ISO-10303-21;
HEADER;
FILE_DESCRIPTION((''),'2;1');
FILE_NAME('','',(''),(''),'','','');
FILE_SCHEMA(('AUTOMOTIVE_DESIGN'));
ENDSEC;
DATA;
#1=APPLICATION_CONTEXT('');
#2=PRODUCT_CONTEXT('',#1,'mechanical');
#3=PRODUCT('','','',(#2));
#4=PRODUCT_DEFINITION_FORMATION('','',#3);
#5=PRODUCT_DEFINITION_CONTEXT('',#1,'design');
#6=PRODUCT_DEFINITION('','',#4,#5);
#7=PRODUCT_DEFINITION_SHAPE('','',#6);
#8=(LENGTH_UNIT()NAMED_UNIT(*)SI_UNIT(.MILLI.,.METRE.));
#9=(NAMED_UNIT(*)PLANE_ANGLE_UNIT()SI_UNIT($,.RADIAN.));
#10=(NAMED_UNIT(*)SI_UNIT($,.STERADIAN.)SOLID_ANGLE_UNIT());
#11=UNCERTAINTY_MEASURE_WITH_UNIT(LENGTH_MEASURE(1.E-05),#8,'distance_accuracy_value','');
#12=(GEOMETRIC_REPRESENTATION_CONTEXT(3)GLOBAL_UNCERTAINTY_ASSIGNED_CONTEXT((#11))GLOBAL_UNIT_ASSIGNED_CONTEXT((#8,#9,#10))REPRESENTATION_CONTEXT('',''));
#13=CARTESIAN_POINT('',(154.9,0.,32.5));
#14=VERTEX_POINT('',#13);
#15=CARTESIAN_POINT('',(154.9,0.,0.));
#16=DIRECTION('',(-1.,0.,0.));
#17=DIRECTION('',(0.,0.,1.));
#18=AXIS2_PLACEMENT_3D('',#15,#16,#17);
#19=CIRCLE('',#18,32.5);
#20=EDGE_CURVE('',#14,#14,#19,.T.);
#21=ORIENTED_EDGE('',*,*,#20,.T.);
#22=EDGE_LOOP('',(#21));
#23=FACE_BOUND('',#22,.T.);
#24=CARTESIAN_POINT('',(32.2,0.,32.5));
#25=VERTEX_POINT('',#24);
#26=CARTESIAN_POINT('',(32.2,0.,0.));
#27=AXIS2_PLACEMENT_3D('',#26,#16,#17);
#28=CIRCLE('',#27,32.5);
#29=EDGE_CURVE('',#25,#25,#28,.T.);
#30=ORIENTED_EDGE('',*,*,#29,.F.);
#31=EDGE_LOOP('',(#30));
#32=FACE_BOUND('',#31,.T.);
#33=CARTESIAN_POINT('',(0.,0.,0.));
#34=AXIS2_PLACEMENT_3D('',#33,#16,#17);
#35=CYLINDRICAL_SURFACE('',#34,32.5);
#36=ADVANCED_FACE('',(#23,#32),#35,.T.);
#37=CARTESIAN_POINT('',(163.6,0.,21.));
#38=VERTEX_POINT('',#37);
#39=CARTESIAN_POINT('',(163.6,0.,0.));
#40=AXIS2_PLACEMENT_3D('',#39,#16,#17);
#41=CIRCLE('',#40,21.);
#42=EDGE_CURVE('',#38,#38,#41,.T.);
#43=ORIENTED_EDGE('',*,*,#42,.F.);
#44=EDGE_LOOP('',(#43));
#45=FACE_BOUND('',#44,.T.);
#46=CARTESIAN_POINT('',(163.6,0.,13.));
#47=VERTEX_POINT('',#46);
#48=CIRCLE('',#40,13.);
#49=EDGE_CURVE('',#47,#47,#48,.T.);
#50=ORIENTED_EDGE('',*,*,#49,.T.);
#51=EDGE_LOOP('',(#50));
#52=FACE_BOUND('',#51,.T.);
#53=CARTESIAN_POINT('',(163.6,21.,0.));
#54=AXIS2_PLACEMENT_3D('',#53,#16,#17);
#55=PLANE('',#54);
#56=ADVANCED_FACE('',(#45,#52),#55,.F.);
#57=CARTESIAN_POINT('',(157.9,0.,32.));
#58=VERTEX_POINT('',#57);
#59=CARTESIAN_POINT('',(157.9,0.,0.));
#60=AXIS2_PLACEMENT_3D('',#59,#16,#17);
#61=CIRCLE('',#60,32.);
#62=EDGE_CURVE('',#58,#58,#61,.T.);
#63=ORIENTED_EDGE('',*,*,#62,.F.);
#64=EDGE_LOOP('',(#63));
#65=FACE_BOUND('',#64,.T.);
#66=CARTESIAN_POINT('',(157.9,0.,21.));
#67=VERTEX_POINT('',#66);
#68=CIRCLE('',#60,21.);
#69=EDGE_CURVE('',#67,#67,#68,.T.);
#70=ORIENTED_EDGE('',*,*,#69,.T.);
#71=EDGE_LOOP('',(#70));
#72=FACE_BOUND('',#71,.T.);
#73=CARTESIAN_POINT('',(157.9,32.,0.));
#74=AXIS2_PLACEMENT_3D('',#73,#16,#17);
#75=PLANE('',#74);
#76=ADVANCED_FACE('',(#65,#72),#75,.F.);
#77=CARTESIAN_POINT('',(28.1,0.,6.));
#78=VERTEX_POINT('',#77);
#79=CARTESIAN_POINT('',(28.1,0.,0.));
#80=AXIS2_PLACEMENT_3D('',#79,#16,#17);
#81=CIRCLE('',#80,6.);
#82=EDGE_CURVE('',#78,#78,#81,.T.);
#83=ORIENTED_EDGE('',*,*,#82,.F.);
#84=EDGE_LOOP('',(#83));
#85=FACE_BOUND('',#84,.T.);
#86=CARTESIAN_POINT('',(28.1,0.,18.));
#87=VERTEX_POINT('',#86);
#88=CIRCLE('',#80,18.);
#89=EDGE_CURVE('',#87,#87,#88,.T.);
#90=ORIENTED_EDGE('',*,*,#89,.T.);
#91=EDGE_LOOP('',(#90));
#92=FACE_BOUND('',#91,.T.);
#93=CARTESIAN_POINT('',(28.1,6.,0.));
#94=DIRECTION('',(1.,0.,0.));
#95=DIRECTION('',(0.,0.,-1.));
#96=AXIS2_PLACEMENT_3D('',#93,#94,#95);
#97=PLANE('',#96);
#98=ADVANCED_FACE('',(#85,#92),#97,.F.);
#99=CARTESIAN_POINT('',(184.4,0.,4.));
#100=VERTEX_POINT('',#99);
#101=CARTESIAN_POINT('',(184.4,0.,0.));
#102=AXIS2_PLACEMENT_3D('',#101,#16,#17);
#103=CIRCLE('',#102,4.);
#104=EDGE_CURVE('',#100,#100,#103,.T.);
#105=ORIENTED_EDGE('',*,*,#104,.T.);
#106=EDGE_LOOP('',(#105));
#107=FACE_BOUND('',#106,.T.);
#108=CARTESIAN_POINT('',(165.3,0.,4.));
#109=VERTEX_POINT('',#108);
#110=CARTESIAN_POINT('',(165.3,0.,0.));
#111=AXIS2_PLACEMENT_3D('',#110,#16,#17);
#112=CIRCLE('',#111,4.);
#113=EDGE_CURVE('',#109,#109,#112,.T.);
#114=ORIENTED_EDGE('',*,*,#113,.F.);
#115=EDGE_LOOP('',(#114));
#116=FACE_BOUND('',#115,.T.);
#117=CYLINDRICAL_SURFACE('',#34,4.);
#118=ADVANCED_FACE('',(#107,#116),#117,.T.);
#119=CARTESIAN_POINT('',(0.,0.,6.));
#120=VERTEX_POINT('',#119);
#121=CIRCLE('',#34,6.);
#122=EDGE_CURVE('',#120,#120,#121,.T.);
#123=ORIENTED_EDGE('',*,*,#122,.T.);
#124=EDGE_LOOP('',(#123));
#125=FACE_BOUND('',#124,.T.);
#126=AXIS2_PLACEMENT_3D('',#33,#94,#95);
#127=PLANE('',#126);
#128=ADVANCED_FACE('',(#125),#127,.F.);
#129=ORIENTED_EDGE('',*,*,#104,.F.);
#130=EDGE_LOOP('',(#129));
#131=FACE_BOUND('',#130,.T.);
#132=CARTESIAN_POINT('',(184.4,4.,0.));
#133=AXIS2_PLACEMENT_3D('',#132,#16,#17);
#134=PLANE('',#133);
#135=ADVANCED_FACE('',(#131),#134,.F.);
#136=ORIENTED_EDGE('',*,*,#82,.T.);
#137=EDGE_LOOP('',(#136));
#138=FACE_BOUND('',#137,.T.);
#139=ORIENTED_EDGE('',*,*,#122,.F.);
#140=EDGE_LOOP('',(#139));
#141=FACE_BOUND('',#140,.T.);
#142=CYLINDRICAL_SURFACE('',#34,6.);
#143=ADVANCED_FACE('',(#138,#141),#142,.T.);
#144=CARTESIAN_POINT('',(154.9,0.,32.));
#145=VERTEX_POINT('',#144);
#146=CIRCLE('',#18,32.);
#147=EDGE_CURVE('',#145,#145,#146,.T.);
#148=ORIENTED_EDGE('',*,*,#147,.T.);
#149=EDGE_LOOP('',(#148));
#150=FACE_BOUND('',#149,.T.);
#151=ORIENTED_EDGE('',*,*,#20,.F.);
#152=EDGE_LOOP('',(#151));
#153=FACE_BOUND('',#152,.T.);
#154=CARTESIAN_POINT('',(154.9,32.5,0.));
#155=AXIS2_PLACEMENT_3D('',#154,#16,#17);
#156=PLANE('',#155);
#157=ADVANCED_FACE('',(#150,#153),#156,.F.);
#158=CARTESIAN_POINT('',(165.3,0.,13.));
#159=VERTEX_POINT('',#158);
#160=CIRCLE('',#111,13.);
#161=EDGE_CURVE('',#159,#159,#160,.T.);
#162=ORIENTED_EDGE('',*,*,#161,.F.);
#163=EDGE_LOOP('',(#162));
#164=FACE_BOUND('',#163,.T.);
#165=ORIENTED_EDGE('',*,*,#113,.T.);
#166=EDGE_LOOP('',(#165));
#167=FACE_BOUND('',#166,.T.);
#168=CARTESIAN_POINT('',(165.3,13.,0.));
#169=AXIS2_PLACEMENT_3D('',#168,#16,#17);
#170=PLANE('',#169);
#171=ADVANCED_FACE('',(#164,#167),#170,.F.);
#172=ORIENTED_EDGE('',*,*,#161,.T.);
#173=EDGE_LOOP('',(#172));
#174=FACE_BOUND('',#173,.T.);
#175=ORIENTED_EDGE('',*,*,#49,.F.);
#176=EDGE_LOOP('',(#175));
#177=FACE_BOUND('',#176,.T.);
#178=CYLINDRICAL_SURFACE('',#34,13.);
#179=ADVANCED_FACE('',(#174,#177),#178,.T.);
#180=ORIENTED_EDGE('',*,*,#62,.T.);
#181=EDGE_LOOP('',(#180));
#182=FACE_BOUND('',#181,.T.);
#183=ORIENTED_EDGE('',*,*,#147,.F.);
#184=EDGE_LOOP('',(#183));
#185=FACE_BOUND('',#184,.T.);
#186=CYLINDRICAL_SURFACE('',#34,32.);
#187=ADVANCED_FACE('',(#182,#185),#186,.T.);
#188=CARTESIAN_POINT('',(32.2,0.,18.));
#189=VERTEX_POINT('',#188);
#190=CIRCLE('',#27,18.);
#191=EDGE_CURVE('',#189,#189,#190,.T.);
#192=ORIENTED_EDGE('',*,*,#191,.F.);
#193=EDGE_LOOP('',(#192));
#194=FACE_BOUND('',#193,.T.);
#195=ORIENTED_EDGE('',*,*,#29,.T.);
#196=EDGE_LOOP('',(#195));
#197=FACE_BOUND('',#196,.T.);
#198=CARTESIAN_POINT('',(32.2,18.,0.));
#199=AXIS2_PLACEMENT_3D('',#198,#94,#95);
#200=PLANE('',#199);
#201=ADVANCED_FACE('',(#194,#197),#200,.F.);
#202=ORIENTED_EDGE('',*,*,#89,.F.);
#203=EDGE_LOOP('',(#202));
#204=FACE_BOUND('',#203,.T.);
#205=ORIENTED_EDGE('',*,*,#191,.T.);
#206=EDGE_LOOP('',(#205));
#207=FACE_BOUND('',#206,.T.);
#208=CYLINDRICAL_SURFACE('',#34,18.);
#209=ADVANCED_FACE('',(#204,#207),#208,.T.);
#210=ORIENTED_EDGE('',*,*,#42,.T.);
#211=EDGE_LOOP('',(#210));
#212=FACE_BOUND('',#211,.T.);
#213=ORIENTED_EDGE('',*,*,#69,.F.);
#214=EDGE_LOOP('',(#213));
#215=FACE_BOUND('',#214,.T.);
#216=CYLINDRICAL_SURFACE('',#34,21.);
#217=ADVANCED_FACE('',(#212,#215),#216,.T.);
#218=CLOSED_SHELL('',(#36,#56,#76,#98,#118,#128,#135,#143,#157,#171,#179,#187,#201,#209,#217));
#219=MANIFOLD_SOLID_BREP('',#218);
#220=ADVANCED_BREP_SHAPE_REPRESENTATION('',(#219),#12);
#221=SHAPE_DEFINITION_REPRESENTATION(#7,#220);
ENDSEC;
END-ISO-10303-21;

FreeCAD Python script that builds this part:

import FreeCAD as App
import Part
import Sketcher

V = App.Vector
Q = App.Units.Quantity


def add_polygon(sketch, points):
    """Adds a closed chain of lines whose ends are joined by coincident constraints."""
    first, n = sketch.GeometryCount, len(points)
    for a, b in zip(points, points[1:] + points[:1]):
        sketch.addGeometry(Part.LineSegment(App.Vector(*a, 0), App.Vector(*b, 0)), False)
    for i in range(n):
        sketch.addConstraint(Sketcher.Constraint("Coincident", first + i, 2, first + (i + 1) % n, 1))

doc = App.newDocument("Part")
params = doc.addObject("Spreadsheet::Sheet", "Params")
for row, (alias, value) in enumerate([
    ("sketch1_width", "3 mm"),
    ("sketch1_height", "6 mm"),
    ("sketch1_height2", "4 mm"),
    ("sketch1_height3", "9 mm"),
    ("sketch1_height4", "8 mm"),
    ("revolution_angle", "360 deg"),
], start=1):
    params.set(f"A{row}", alias)
    params.set(f"B{row}", "=" + value)
    params.setAlias(f"B{row}", alias)

body = doc.addObject("PartDesign::Body", "Body")

sketch1 = body.newObject("Sketcher::SketchObject", "Sketch")
sketch1.AttachmentSupport = (doc.getObject("XY_Plane"), [""])
sketch1.MapMode = "FlatFace"
add_polygon(sketch1, [(0, 6), (0, 0), (184.4, 0), (184.4, 4), (165.3, 4), (165.3, 13), (163.6, 13), (163.6, 21), (157.9, 21), (157.9, 32), (154.9, 32), (154.9, 32.5), (32.2, 32.5), (32.2, 18), (28.1, 18), (28.1, 6)])
sketch1.addConstraint([
    Sketcher.Constraint("Vertical", 0),
    Sketcher.Constraint("Horizontal", 1),
    Sketcher.Constraint("Vertical", 2),
    Sketcher.Constraint("Horizontal", 3),
    Sketcher.Constraint("Vertical", 4),
    Sketcher.Constraint("Horizontal", 5),
    Sketcher.Constraint("Vertical", 6),
    Sketcher.Constraint("Horizontal", 7),
    Sketcher.Constraint("Vertical", 8),
    Sketcher.Constraint("Horizontal", 9),
    Sketcher.Constraint("Vertical", 10),
    Sketcher.Constraint("Horizontal", 11),
    Sketcher.Constraint("Vertical", 12),
    Sketcher.Constraint("Horizontal", 13),
    Sketcher.Constraint("Vertical", 14),
    Sketcher.Constraint("Horizontal", 15),
    Sketcher.Constraint("Coincident", 0, 2, -1, 1),
    Sketcher.Constraint("DistanceX", 9, 2, 9, 1, Q("3 mm")),
    Sketcher.Constraint("DistanceY", 0, 2, 0, 1, Q("6 mm")),
    Sketcher.Constraint("DistanceY", 2, 1, 2, 2, Q("4 mm")),
    Sketcher.Constraint("DistanceY", 4, 1, 4, 2, Q("9 mm")),
    Sketcher.Constraint("DistanceY", 6, 1, 6, 2, Q("8 mm")),
    Sketcher.Constraint("DistanceY", 8, 1, 8, 2, Q("11 mm")),
    Sketcher.Constraint("DistanceY", 14, 2, 14, 1, Q("12 mm")),
    Sketcher.Constraint("DistanceX", 1, 1, 1, 2, Q("184.4 mm")),
    Sketcher.Constraint("DistanceX", 3, 2, 3, 1, Q("19.1 mm")),
    Sketcher.Constraint("DistanceX", 5, 2, 5, 1, Q("1.7 mm")),
    Sketcher.Constraint("DistanceX", 7, 2, 7, 1, Q("5.7 mm")),
    Sketcher.Constraint("DistanceX", 11, 2, 11, 1, Q("122.7 mm")),
    Sketcher.Constraint("DistanceX", 13, 2, 13, 1, Q("4.1 mm")),
    Sketcher.Constraint("DistanceY", 10, 1, 10, 2, Q("0.5 mm")),
])
sketch1.setExpression("Constraints[33]", "Params.sketch1_width")
sketch1.setExpression("Constraints[34]", "Params.sketch1_height")
sketch1.setExpression("Constraints[35]", "Params.sketch1_height2")
sketch1.setExpression("Constraints[36]", "Params.sketch1_height3")
sketch1.setExpression("Constraints[37]", "Params.sketch1_height4")
revolution = body.newObject("PartDesign::Revolution", "Revolution")
revolution.Profile = sketch1
revolution.ReferenceAxis = (sketch1, ["H_Axis"])
revolution.setExpression("Angle", "Params.revolution_angle")

doc.recompute()
